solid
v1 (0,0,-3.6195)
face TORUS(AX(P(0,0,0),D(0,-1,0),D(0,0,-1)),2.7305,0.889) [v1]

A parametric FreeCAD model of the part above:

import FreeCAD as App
import Part
import Sketcher

V = App.Vector
Q = App.Units.Quantity

doc = App.newDocument("Part")
params = doc.addObject("Spreadsheet::Sheet", "Params")
for row, (alias, value) in enumerate([
    ("sketch1_diameter", "0.07 in"),
    ("revolution_angle", "360 deg"),
], start=1):
    params.set(f"A{row}", alias)
    params.set(f"B{row}", "=" + value)
    params.setAlias(f"B{row}", alias)

body = doc.addObject("PartDesign::Body", "Body")

sketch1 = body.newObject("Sketcher::SketchObject", "Sketch")
sketch1.AttachmentSupport = (doc.getObject("XY_Plane"), [""])
sketch1.MapMode = "FlatFace"
sketch1.addGeometry(Part.Circle(V(-2.7, 0, 0), V(0, 0, 1), 0.9), False)
sketch1.addConstraint(Sketcher.Constraint("PointOnObject", 0, 3, -1))
sketch1.addConstraint(Sketcher.Constraint("Diameter", 0, Q("0.07 in")))
sketch1.addConstraint(Sketcher.Constraint("DistanceX", 0, 3, -1, 1, Q("0.1075 in")))
sketch1.setExpression("Constraints[1]", "Params.sketch1_diameter")
revolution = body.newObject("PartDesign::Revolution", "Revolution")
revolution.Profile = sketch1
revolution.ReferenceAxis = (sketch1, ["V_Axis"])
revolution.setExpression("Angle", "Params.revolution_angle")

doc.recompute()
